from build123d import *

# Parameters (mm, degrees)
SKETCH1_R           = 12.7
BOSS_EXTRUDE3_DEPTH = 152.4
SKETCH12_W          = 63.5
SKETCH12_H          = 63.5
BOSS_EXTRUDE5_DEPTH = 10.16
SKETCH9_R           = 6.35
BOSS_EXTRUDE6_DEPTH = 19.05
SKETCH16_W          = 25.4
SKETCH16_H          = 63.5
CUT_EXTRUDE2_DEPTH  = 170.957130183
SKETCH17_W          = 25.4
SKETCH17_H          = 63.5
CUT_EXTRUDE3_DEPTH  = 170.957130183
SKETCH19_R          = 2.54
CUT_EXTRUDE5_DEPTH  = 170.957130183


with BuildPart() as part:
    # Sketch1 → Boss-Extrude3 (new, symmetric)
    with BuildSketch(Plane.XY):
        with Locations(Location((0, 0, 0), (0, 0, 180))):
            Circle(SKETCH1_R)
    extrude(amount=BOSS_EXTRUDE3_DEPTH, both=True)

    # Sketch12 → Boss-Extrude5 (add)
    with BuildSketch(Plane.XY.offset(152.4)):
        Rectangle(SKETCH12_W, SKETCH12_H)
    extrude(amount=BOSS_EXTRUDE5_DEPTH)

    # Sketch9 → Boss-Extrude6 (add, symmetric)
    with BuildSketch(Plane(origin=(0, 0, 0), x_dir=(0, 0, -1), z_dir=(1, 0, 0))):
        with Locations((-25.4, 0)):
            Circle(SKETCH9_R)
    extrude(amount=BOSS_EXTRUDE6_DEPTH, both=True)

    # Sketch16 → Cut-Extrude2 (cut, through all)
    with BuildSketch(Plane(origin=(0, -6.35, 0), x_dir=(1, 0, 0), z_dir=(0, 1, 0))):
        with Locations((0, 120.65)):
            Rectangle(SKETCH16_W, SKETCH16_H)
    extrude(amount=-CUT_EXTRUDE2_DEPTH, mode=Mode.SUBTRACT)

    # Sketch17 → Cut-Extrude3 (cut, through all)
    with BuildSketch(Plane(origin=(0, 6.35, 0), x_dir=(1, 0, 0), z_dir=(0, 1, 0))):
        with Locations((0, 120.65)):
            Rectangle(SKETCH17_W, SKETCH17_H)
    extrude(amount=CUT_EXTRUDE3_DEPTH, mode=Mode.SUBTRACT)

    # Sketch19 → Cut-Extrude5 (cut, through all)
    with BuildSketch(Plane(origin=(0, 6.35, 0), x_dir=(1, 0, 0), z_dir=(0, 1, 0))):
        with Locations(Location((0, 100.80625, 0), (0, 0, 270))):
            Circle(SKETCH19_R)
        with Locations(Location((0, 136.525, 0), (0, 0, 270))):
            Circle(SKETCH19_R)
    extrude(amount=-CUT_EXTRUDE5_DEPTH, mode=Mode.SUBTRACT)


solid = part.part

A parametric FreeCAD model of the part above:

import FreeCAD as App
import Part
import Sketcher
Q = App.Units.Quantity

doc = App.newDocument("Part")
body = doc.addObject("PartDesign::Body", "Body")

# Sketch on XY plane
sketch1 = doc.addObject("Sketcher::SketchObject", "Sketch")
body.addObject(sketch1)
sketch1.AttachmentSupport = (doc.XY_Plane, [""])
sketch1.MapMode = "FlatFace"
sketch1.addGeometry(Part.Circle(App.Vector(0, 0, 0), App.Vector(0, 0, 1), 13), False)
sketch1.addConstraint(Sketcher.Constraint("Coincident", 0, 3, -1, 1))
sketch1.addConstraint(Sketcher.Constraint("Diameter", 0, Q("1 in")))
pad1 = doc.addObject("PartDesign::Pad", "Pad")
body.addObject(pad1)
pad1.Profile = sketch1
pad1.Length = Q("12 in")
pad1.Midplane = True

# Sketch on XY plane
sketch2 = doc.addObject("Sketcher::SketchObject", "Sketch001")
body.addObject(sketch2)
sketch2.AttachmentSupport = (doc.XY_Plane, [""])
sketch2.MapMode = "FlatFace"
sketch2.AttachmentOffset = App.Placement(App.Vector(0, 0, 6 * 25.4), App.Rotation())
sketch2.addGeometry(Part.LineSegment(App.Vector(-32, 32, 0), App.Vector(-32, -32, 0)), False)
sketch2.addGeometry(Part.LineSegment(App.Vector(-32, -32, 0), App.Vector(32, -32, 0)), False)
sketch2.addGeometry(Part.LineSegment(App.Vector(32, -32, 0), App.Vector(32, 32, 0)), False)
sketch2.addGeometry(Part.LineSegment(App.Vector(32, 32, 0), App.Vector(-32, 32, 0)), False)
sketch2.addConstraint(Sketcher.Constraint("Coincident", 0, 2, 1, 1))
sketch2.addConstraint(Sketcher.Constraint("Coincident", 1, 2, 2, 1))
sketch2.addConstraint(Sketcher.Constraint("Coincident", 2, 2, 3, 1))
sketch2.addConstraint(Sketcher.Constraint("Coincident", 3, 2, 0, 1))
sketch2.addConstraint(Sketcher.Constraint("Vertical", 0))
sketch2.addConstraint(Sketcher.Constraint("Horizontal", 1))
sketch2.addConstraint(Sketcher.Constraint("Vertical", 2))
sketch2.addConstraint(Sketcher.Constraint("Horizontal", 3))
sketch2.addConstraint(Sketcher.Constraint("Symmetric", 0, 2, 2, 2, -1, 1))
sketch2.addConstraint(Sketcher.Constraint("Equal", 3, 0))
sketch2.addConstraint(Sketcher.Constraint("DistanceX", 1, 1, 1, 2, Q("2.5 in")))
pad2 = doc.addObject("PartDesign::Pad", "Pad001")
body.addObject(pad2)
pad2.Profile = sketch2
pad2.Length = Q("0.4 in")

# Sketch on YZ plane
sketch3 = doc.addObject("Sketcher::SketchObject", "Sketch002")
body.addObject(sketch3)
sketch3.AttachmentSupport = (doc.YZ_Plane, [""])
sketch3.MapMode = "FlatFace"
sketch3.addGeometry(Part.Circle(App.Vector(0, 25, 0), App.Vector(0, 0, 1), 6), False)
sketch3.addConstraint(Sketcher.Constraint("PointOnObject", 0, 3, -2))
sketch3.addConstraint(Sketcher.Constraint("Diameter", 0, Q("0.5 in")))
sketch3.addConstraint(Sketcher.Constraint("DistanceY", -1, 1, 0, 3, Q("1 in")))
pad3 = doc.addObject("PartDesign::Pad", "Pad002")
body.addObject(pad3)
pad3.Profile = sketch3
pad3.Length = Q("1.5 in")
pad3.Midplane = True

# Sketch on XZ plane
sketch4 = doc.addObject("Sketcher::SketchObject", "Sketch003")
body.addObject(sketch4)
sketch4.AttachmentSupport = (doc.XZ_Plane, [""])
sketch4.MapMode = "FlatFace"
sketch4.AttachmentOffset = App.Placement(App.Vector(0, 0, 0.25 * 25.4), App.Rotation())
sketch4.addGeometry(Part.LineSegment(App.Vector(-13, -152, 0), App.Vector(-13, -89, 0)), False)
sketch4.addGeometry(Part.LineSegment(App.Vector(-13, -89, 0), App.Vector(13, -89, 0)), False)
sketch4.addGeometry(Part.LineSegment(App.Vector(13, -89, 0), App.Vector(13, -152, 0)), False)
sketch4.addGeometry(Part.LineSegment(App.Vector(13, -152, 0), App.Vector(-13, -152, 0)), False)
sketch4.addConstraint(Sketcher.Constraint("Coincident", 0, 2, 1, 1))
sketch4.addConstraint(Sketcher.Constraint("Coincident", 1, 2, 2, 1))
sketch4.addConstraint(Sketcher.Constraint("Coincident", 2, 2, 3, 1))
sketch4.addConstraint(Sketcher.Constraint("Coincident", 3, 2, 0, 1))
sketch4.addConstraint(Sketcher.Constraint("Vertical", 0))
sketch4.addConstraint(Sketcher.Constraint("Horizontal", 1))
sketch4.addConstraint(Sketcher.Constraint("Vertical", 2))
sketch4.addConstraint(Sketcher.Constraint("Horizontal", 3))
sketch4.addConstraint(Sketcher.Constraint("DistanceX", 1, 1, 1, 2, Q("1 in")))
sketch4.addConstraint(Sketcher.Constraint("DistanceY", 0, 1, 0, 2, Q("2.5 in")))
sketch4.addConstraint(Sketcher.Constraint("DistanceY", 2, 2, -1, 1, Q("6 in")))
sketch4.addConstraint(Sketcher.Constraint("DistanceX", 0, 2, -1, 1, Q("0.5 in")))
pocket1 = doc.addObject("PartDesign::Pocket", "Pocket")
body.addObject(pocket1)
pocket1.Profile = sketch4
pocket1.Type = "ThroughAll"
pocket1.Reversed = True

# Sketch on XZ plane
sketch5 = doc.addObject("Sketcher::SketchObject", "Sketch004")
body.addObject(sketch5)
sketch5.AttachmentSupport = (doc.XZ_Plane, [""])
sketch5.MapMode = "FlatFace"
sketch5.AttachmentOffset = App.Placement(App.Vector(0, 0, -0.25 * 25.4), App.Rotation())
sketch5.addGeometry(Part.LineSegment(App.Vector(-13, -152, 0), App.Vector(-13, -89, 0)), False)
sketch5.addGeometry(Part.LineSegment(App.Vector(-13, -89, 0), App.Vector(13, -89, 0)), False)
sketch5.addGeometry(Part.LineSegment(App.Vector(13, -89, 0), App.Vector(13, -152, 0)), False)
sketch5.addGeometry(Part.LineSegment(App.Vector(13, -152, 0), App.Vector(-13, -152, 0)), False)
sketch5.addConstraint(Sketcher.Constraint("Coincident", 0, 2, 1, 1))
sketch5.addConstraint(Sketcher.Constraint("Coincident", 1, 2, 2, 1))
sketch5.addConstraint(Sketcher.Constraint("Coincident", 2, 2, 3, 1))
sketch5.addConstraint(Sketcher.Constraint("Coincident", 3, 2, 0, 1))
sketch5.addConstraint(Sketcher.Constraint("Vertical", 0))
sketch5.addConstraint(Sketcher.Constraint("Horizontal", 1))
sketch5.addConstraint(Sketcher.Constraint("Vertical", 2))
sketch5.addConstraint(Sketcher.Constraint("Horizontal", 3))
sketch5.addConstraint(Sketcher.Constraint("DistanceX", 1, 1, 1, 2, Q("1 in")))
sketch5.addConstraint(Sketcher.Constraint("DistanceY", 0, 1, 0, 2, Q("2.5 in")))
sketch5.addConstraint(Sketcher.Constraint("DistanceY", 2, 2, -1, 1, Q("6 in")))
sketch5.addConstraint(Sketcher.Constraint("DistanceX", 0, 2, -1, 1, Q("0.5 in")))
pocket2 = doc.addObject("PartDesign::Pocket", "Pocket001")
body.addObject(pocket2)
pocket2.Profile = sketch5
pocket2.Type = "ThroughAll"

# Sketch on XZ plane
sketch6 = doc.addObject("Sketcher::SketchObject", "Sketch005")
body.addObject(sketch6)
sketch6.AttachmentSupport = (doc.XZ_Plane, [""])
sketch6.MapMode = "FlatFace"
sketch6.AttachmentOffset = App.Placement(App.Vector(0, 0, -0.25 * 25.4), App.Rotation())
sketch6.addGeometry(Part.Circle(App.Vector(0, -100.8, 0), App.Vector(0, 0, 1), 2.5), False)
sketch6.addGeometry(Part.Circle(App.Vector(0, -136.5, 0), App.Vector(0, 0, 1), 2.5), False)
sketch6.addConstraint(Sketcher.Constraint("Equal", 0, 1))
sketch6.addConstraint(Sketcher.Constraint("PointOnObject", 0, 3, -2))
sketch6.addConstraint(Sketcher.Constraint("PointOnObject", 1, 3, -2))
sketch6.addConstraint(Sketcher.Constraint("Diameter", 0, Q("0.2 in")))
sketch6.addConstraint(Sketcher.Constraint("DistanceY", 0, 3, -1, 1, Q("3.96875 in")))
sketch6.addConstraint(Sketcher.Constraint("DistanceY", 1, 3, -1, 1, Q("5.375 in")))
pocket3 = doc.addObject("PartDesign::Pocket", "Pocket002")
body.addObject(pocket3)
pocket3.Profile = sketch6
pocket3.Type = "ThroughAll"
pocket3.Reversed = True

doc.recompute()
